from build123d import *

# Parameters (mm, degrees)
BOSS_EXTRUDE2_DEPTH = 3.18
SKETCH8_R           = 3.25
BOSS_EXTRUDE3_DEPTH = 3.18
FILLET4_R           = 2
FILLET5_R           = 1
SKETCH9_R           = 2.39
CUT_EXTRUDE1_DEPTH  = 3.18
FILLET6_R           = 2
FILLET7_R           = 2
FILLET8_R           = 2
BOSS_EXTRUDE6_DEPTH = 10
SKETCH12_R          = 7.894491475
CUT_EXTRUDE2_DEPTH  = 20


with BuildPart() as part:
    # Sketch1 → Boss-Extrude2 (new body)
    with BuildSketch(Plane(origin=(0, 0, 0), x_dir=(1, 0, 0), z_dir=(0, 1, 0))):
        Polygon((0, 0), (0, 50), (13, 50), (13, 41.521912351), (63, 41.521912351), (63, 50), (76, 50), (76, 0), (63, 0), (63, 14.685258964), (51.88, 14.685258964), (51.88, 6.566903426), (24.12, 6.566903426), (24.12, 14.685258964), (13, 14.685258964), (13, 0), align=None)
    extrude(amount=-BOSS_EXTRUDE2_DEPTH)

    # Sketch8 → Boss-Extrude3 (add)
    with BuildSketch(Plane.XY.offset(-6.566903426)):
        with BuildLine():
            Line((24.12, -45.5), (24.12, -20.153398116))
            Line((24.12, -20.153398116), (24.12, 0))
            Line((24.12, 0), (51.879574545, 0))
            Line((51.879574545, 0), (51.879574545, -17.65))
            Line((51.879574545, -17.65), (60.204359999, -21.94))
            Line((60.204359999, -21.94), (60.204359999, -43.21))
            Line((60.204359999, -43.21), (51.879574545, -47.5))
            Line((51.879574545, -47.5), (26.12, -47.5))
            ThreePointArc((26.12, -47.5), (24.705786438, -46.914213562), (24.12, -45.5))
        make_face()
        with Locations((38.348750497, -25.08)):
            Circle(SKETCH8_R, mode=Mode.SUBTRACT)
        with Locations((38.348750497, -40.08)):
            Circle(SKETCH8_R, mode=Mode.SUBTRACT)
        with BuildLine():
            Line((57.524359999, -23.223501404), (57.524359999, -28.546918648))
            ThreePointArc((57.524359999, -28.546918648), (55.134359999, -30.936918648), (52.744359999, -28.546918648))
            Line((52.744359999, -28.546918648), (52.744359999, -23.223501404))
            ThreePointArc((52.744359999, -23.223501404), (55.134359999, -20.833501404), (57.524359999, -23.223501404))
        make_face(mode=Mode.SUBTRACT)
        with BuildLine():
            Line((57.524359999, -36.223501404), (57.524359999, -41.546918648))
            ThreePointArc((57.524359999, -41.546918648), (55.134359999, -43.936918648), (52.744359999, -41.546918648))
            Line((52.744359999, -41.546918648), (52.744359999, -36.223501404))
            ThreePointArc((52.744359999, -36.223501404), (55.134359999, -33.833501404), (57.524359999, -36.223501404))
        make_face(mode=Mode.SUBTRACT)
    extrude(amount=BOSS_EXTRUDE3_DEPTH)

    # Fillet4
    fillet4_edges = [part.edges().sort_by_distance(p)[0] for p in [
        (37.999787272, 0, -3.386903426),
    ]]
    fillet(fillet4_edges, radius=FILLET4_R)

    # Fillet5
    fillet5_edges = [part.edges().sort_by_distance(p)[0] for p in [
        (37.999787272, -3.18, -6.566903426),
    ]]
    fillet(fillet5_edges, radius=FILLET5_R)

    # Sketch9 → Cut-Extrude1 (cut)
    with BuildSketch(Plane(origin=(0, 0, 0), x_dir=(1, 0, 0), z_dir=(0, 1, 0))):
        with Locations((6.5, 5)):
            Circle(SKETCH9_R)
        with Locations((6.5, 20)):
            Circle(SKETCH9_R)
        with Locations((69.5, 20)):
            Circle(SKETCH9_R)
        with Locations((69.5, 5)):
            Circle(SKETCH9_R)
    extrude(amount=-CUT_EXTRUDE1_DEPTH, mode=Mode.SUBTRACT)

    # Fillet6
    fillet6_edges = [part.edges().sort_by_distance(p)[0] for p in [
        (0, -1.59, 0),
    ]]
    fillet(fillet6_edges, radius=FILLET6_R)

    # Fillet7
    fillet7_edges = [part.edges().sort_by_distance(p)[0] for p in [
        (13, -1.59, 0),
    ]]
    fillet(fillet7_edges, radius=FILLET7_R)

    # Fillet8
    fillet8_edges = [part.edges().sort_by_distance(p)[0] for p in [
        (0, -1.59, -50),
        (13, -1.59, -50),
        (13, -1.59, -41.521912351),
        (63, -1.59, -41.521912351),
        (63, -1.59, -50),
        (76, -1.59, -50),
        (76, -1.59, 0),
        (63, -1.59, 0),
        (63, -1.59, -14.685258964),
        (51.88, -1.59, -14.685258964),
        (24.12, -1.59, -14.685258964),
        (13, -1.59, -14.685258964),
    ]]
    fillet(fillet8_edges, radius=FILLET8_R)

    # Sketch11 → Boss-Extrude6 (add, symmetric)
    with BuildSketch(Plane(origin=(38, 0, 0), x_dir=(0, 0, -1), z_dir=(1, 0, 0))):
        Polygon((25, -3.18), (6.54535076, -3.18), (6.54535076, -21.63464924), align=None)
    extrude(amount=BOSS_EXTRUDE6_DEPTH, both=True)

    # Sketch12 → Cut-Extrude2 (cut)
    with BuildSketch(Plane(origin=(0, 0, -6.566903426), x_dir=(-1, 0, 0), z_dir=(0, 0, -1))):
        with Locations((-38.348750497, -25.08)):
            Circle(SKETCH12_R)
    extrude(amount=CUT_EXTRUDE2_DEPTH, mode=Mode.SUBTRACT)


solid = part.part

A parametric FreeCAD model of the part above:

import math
import FreeCAD as App
import Part
import Sketcher


def edges_at(feature, points):
    """Names of the edges that pass closest to the given points."""
    edges = feature.Shape.Edges
    near = lambda p: min(range(len(edges)), key=lambda i: edges[i].distToShape(Part.Vertex(*p))[0])
    return sorted({f"Edge{near(p) + 1}" for p in points})

doc = App.newDocument("Part")
body = doc.addObject("PartDesign::Body", "Body")

# Sketch on XZ plane
sketch1 = body.newObject("Sketcher::SketchObject", "Sketch")
sketch1.AttachmentSupport = (doc.getObject("XZ_Plane"), [""])
sketch1.MapMode = "FlatFace"
sketch1.addGeometry([
    Part.LineSegment(App.Vector(0, -50, 0), App.Vector(0, 0, 0)),  # 0
    Part.LineSegment(App.Vector(0, 0, 0), App.Vector(13, 0, 0)),  # 1
    Part.LineSegment(App.Vector(13, 0, 0), App.Vector(13, -15, 0)),  # 2
    Part.LineSegment(App.Vector(13, -15, 0), App.Vector(24, -15, 0)),  # 3
    Part.LineSegment(App.Vector(24, -15, 0), App.Vector(24, -7, 0)),  # 4
    Part.LineSegment(App.Vector(24, -7, 0), App.Vector(52, -7, 0)),  # 5
    Part.LineSegment(App.Vector(52, -7, 0), App.Vector(52, -15, 0)),  # 6
    Part.LineSegment(App.Vector(52, -15, 0), App.Vector(63, -15, 0)),  # 7
    Part.LineSegment(App.Vector(63, -15, 0), App.Vector(63, 0, 0)),  # 8
    Part.LineSegment(App.Vector(63, 0, 0), App.Vector(76, 0, 0)),  # 9
    Part.LineSegment(App.Vector(76, 0, 0), App.Vector(76, -50, 0)),  # 10
    Part.LineSegment(App.Vector(76, -50, 0), App.Vector(63, -50, 0)),  # 11
    Part.LineSegment(App.Vector(63, -50, 0), App.Vector(63, -42, 0)),  # 12
    Part.LineSegment(App.Vector(63, -42, 0), App.Vector(13, -42, 0)),  # 13
    Part.LineSegment(App.Vector(13, -42, 0), App.Vector(13, -50, 0)),  # 14
    Part.LineSegment(App.Vector(13, -50, 0), App.Vector(0, -50, 0)),  # 15
], False)
sketch1.addConstraint([
    Sketcher.Constraint("Coincident", 0, 2, 1, 1),
    Sketcher.Constraint("Coincident", 1, 2, 2, 1),
    Sketcher.Constraint("Coincident", 2, 2, 3, 1),
    Sketcher.Constraint("Coincident", 3, 2, 4, 1),
    Sketcher.Constraint("Coincident", 4, 2, 5, 1),
    Sketcher.Constraint("Coincident", 5, 2, 6, 1),
    Sketcher.Constraint("Coincident", 6, 2, 7, 1),
    Sketcher.Constraint("Coincident", 7, 2, 8, 1),
    Sketcher.Constraint("Coincident", 8, 2, 9, 1),
    Sketcher.Constraint("Coincident", 9, 2, 10, 1),
    Sketcher.Constraint("Coincident", 10, 2, 11, 1),
    Sketcher.Constraint("Coincident", 11, 2, 12, 1),
    Sketcher.Constraint("Coincident", 12, 2, 13, 1),
    Sketcher.Constraint("Coincident", 13, 2, 14, 1),
    Sketcher.Constraint("Coincident", 14, 2, 15, 1),
    Sketcher.Constraint("Coincident", 15, 2, 0, 1),
    Sketcher.Constraint("Vertical", 0),
    Sketcher.Constraint("Horizontal", 1),
    Sketcher.Constraint("Vertical", 2),
    Sketcher.Constraint("Horizontal", 3),
    Sketcher.Constraint("Vertical", 4),
    Sketcher.Constraint("Horizontal", 5),
    Sketcher.Constraint("Vertical", 6),
    Sketcher.Constraint("Horizontal", 7),
    Sketcher.Constraint("Vertical", 8),
    Sketcher.Constraint("Horizontal", 9),
    Sketcher.Constraint("Vertical", 10),
    Sketcher.Constraint("Horizontal", 11),
    Sketcher.Constraint("Vertical", 12),
    Sketcher.Constraint("Horizontal", 13),
    Sketcher.Constraint("Vertical", 14),
    Sketcher.Constraint("Horizontal", 15),
    Sketcher.Constraint("Coincident", 0, 2, -1, 1),
    Sketcher.Constraint("PointOnObject", 8, 2, -1),
    Sketcher.Constraint("Horizontal", 3, 2, 6, 2),
    Sketcher.Constraint("Horizontal", 11, 2, 14, 2),
    Sketcher.Constraint("Vertical", 8, 2, 11, 2),
    Sketcher.Constraint("Vertical", 2, 2, 13, 2),
    Sketcher.Constraint("Equal", 3, 7),
    Sketcher.Constraint("Equal", 1, 9),
    Sketcher.Constraint("Equal", 13, 0),
    Sketcher.Constraint("DistanceX", 1, 1, 1, 2, 13.0),
    Sketcher.Constraint("DistanceX", 13, 2, 13, 1, 50.0),
    Sketcher.Constraint("DistanceX", 3, 1, 3, 2, 11.12),
    Sketcher.Constraint("DistanceY", 2, 2, 2, 1, 14.685259),
    Sketcher.Constraint("DistanceY", 4, 1, 4, 2, 8.118356),
    Sketcher.Constraint("DistanceY", 12, 1, 12, 2, 8.478088),
])
pad1 = body.newObject("PartDesign::Pad", "Pad")
pad1.Profile = sketch1
pad1.Length = 3.18

# Sketch on XY plane
sketch2 = body.newObject("Sketcher::SketchObject", "Sketch001")
sketch2.AttachmentSupport = (doc.getObject("XY_Plane"), [""])
sketch2.MapMode = "FlatFace"
sketch2.AttachmentOffset = App.Placement(App.Vector(0, 0, -6.566903), App.Rotation())
sketch2.addGeometry([
    Part.LineSegment(App.Vector(24.1, 0, 0), App.Vector(24.1, -45.5, 0)),  # 0
    Part.ArcOfCircle(Part.Circle(App.Vector(26.1, -45.5, 0), App.Vector(0, 0, 1), 2), math.radians(-180), math.radians(-90)),  # 1
    Part.LineSegment(App.Vector(26.1, -47.5, 0), App.Vector(51.9, -47.5, 0)),  # 2
    Part.LineSegment(App.Vector(51.9, -47.5, 0), App.Vector(60.2, -43.2, 0)),  # 3
    Part.LineSegment(App.Vector(60.2, -43.2, 0), App.Vector(60.2, -21.9, 0)),  # 4
    Part.LineSegment(App.Vector(60.2, -21.9, 0), App.Vector(51.9, -17.6, 0)),  # 5
    Part.LineSegment(App.Vector(51.9, -17.6, 0), App.Vector(51.9, 0, 0)),  # 6
    Part.LineSegment(App.Vector(51.9, 0, 0), App.Vector(24.1, 0, 0)),  # 7
    Part.LineSegment(App.Vector(57.5, -36.2, 0), App.Vector(57.5, -41.5, 0)),  # 8
    Part.ArcOfCircle(Part.Circle(App.Vector(55.1, -41.5, 0), App.Vector(0, 0, 1), 2.4), math.radians(180), math.radians(360)),  # 9
    Part.LineSegment(App.Vector(52.7, -41.5, 0), App.Vector(52.7, -36.2, 0)),  # 10
    Part.ArcOfCircle(Part.Circle(App.Vector(55.1, -36.2, 0), App.Vector(0, 0, 1), 2.4), math.radians(0), math.radians(180)),  # 11
    Part.Circle(App.Vector(38.3, -40.1, 0), App.Vector(0, 0, 1), 3.2),  # 12
    Part.LineSegment(App.Vector(57.5, -23.2, 0), App.Vector(57.5, -28.5, 0)),  # 13
    Part.ArcOfCircle(Part.Circle(App.Vector(55.1, -28.5, 0), App.Vector(0, 0, 1), 2.4), math.radians(180), math.radians(360)),  # 14
    Part.LineSegment(App.Vector(52.7, -28.5, 0), App.Vector(52.7, -23.2, 0)),  # 15
    Part.ArcOfCircle(Part.Circle(App.Vector(55.1, -23.2, 0), App.Vector(0, 0, 1), 2.4), math.radians(0), math.radians(180)),  # 16
    Part.Circle(App.Vector(38.3, -25.1, 0), App.Vector(0, 0, 1), 3.2),  # 17
], False)
sketch2.addConstraint([
    Sketcher.Constraint("Tangent", 0, 2, 1, 1),
    Sketcher.Constraint("Tangent", 1, 2, 2, 1),
    Sketcher.Constraint("Coincident", 2, 2, 3, 1),
    Sketcher.Constraint("Coincident", 3, 2, 4, 1),
    Sketcher.Constraint("Coincident", 4, 2, 5, 1),
    Sketcher.Constraint("Coincident", 5, 2, 6, 1),
    Sketcher.Constraint("Coincident", 6, 2, 7, 1),
    Sketcher.Constraint("Coincident", 7, 2, 0, 1),
    Sketcher.Constraint("Tangent", 8, 2, 9, 2),
    Sketcher.Constraint("Tangent", 9, 1, 10, 1),
    Sketcher.Constraint("Tangent", 10, 2, 11, 2),
    Sketcher.Constraint("Tangent", 11, 1, 8, 1),
    Sketcher.Constraint("Tangent", 13, 2, 14, 2),
    Sketcher.Constraint("Tangent", 14, 1, 15, 1),
    Sketcher.Constraint("Tangent", 15, 2, 16, 2),
    Sketcher.Constraint("Tangent", 16, 1, 13, 1),
    Sketcher.Constraint("Vertical", 0),
    Sketcher.Constraint("Horizontal", 2),
    Sketcher.Constraint("Vertical", 4),
    Sketcher.Constraint("Vertical", 6),
    Sketcher.Constraint("Horizontal", 7),
    Sketcher.Constraint("Vertical", 8),
    Sketcher.Constraint("Vertical", 10),
    Sketcher.Constraint("Vertical", 13),
    Sketcher.Constraint("Vertical", 15),
    Sketcher.Constraint("Equal", 11, 14),
    Sketcher.Constraint("Equal", 12, 17),
    Sketcher.Constraint("PointOnObject", 6, 2, -1),
    Sketcher.Constraint("Vertical", 11, 3, 14, 3),
    Sketcher.Constraint("Vertical", 12, 3, 17, 3),
    Sketcher.Constraint("Vertical", 2, 2, 5, 2),
    Sketcher.Constraint("Equal", 10, 13),
    Sketcher.Constraint("Equal", 3, 5),
    Sketcher.Constraint("Radius", 1, 2.0),
    Sketcher.Constraint("Diameter", 12, 6.5),
    Sketcher.Constraint("Radius", 9, 2.39),
    Sketcher.Constraint("DistanceY", 0, 2, 0, 1, 45.5),
    Sketcher.Constraint("DistanceY", 9, 3, 14, 3, 13.0),
    Sketcher.Constraint("DistanceY", 12, 3, 17, 3, 15.0),
    Sketcher.Constraint("DistanceY", 4, 1, 4, 2, 21.27),
    Sketcher.Constraint("DistanceY", 6, 1, 6, 2, 17.65),
    Sketcher.Constraint("DistanceX", -1, 1, 1, 3, 26.12),
    Sketcher.Constraint("DistanceY", 12, 3, -1, 1, 40.08),
    Sketcher.Constraint("DistanceX", 9, 3, 3, 2, 5.07),
    Sketcher.Constraint("DistanceY", 11, 3, -1, 1, 36.223501),
    Sketcher.Constraint("DistanceX", 2, 1, 2, 2, 25.759575),
    Sketcher.Constraint("DistanceY", 8, 2, 8, 1, 5.323417),
    Sketcher.Constraint("DistanceX", -1, 1, 9, 3, 55.13436),
    Sketcher.Constraint("DistanceX", -1, 1, 12, 3, 38.34875),
])
pad2 = body.newObject("PartDesign::Pad", "Pad001")
pad2.Profile = sketch2
pad2.Length = 3.18
doc.recompute()

fillet = body.newObject("PartDesign::Fillet", "Fillet")
fillet.Base = (pad2, edges_at(pad2, [(38, 0, -3.387)]))
fillet.Radius = 2
doc.recompute()

fillet2 = body.newObject("PartDesign::Fillet", "Fillet001")
fillet2.Base = (fillet, edges_at(fillet, [(38, -3.18, -6.567)]))
fillet2.Radius = 1

# Sketch on XZ plane
sketch3 = body.newObject("Sketcher::SketchObject", "Sketch002")
sketch3.AttachmentSupport = (doc.getObject("XZ_Plane"), [""])
sketch3.MapMode = "FlatFace"
sketch3.addGeometry([
    Part.Circle(App.Vector(6.5, -5, 0), App.Vector(0, 0, 1), 2.4),
    Part.Circle(App.Vector(6.5, -20, 0), App.Vector(0, 0, 1), 2.4),
    Part.Circle(App.Vector(69.5, -20, 0), App.Vector(0, 0, 1), 2.4),
    Part.Circle(App.Vector(69.5, -5, 0), App.Vector(0, 0, 1), 2.4),
], False)
sketch3.addConstraint([
    Sketcher.Constraint("Equal", 0, 1),
    Sketcher.Constraint("Equal", 1, 2),
    Sketcher.Constraint("Equal", 2, 3),
    Sketcher.Constraint("Horizontal", 1, 3, 2, 3),
    Sketcher.Constraint("Horizontal", 0, 3, 3, 3),
    Sketcher.Constraint("Vertical", 0, 3, 1, 3),
    Sketcher.Constraint("Vertical", 2, 3, 3, 3),
    Sketcher.Constraint("Diameter", 0, 4.78),
    Sketcher.Constraint("DistanceY", 0, 3, -1, 1, 5.0),
    Sketcher.Constraint("DistanceY", 1, 3, -1, 1, 20.0),
    Sketcher.Constraint("DistanceX", 1, 3, 2, 3, 63.0),
    Sketcher.Constraint("DistanceX", -1, 1, 0, 3, 6.5),
])
pocket1 = body.newObject("PartDesign::Pocket", "Pocket")
pocket1.Profile = sketch3
pocket1.Length = 3.18
pocket1.Reversed = True
doc.recompute()

fillet3 = body.newObject("PartDesign::Fillet", "Fillet002")
fillet3.Base = (pocket1, edges_at(pocket1, [(0, -1.59, 0)]))
fillet3.Radius = 2
doc.recompute()

fillet4 = body.newObject("PartDesign::Fillet", "Fillet003")
fillet4.Base = (fillet3, edges_at(fillet3, [(13, -1.59, 0)]))
fillet4.Radius = 2
doc.recompute()

fillet5 = body.newObject("PartDesign::Fillet", "Fillet004")
fillet5.Base = (fillet4, edges_at(fillet4, [
    (0, -1.59, -50),
    (13, -1.59, -50),
    (13, -1.59, -41.522),
    (63, -1.59, -41.522),
    (63, -1.59, -50),
    (76, -1.59, -50),
    (76, -1.59, 0),
    (63, -1.59, 0),
    (63, -1.59, -14.685),
    (51.88, -1.59, -14.685),
    (24.12, -1.59, -14.685),
    (13, -1.59, -14.685),
]))
fillet5.Radius = 2

# Sketch on YZ plane
sketch4 = body.newObject("Sketcher::SketchObject", "Sketch003")
sketch4.AttachmentSupport = (doc.getObject("YZ_Plane"), [""])
sketch4.MapMode = "FlatFace"
sketch4.AttachmentOffset = App.Placement(App.Vector(0, 0, 38), App.Rotation())
sketch4.addGeometry([
    Part.LineSegment(App.Vector(-3, -25, 0), App.Vector(-3, -7, 0)),
    Part.LineSegment(App.Vector(-3, -7, 0), App.Vector(-22, -7, 0)),
    Part.LineSegment(App.Vector(-22, -7, 0), App.Vector(-3, -25, 0)),
], False)
sketch4.addConstraint([
    Sketcher.Constraint("Coincident", 0, 2, 1, 1),
    Sketcher.Constraint("Coincident", 1, 2, 2, 1),
    Sketcher.Constraint("Coincident", 2, 2, 0, 1),
    Sketcher.Constraint("Vertical", 0),
    Sketcher.Constraint("Horizontal", 1),
    Sketcher.Constraint("Equal", 1, 0),
    Sketcher.Constraint("DistanceY", 2, 2, -1, 1, 25.0),
    Sketcher.Constraint("DistanceX", 0, 2, -1, 1, 3.18),
    Sketcher.Constraint("DistanceX", 1, 2, 1, 1, 18.454649),
])
pad3 = body.newObject("PartDesign::Pad", "Pad002")
pad3.Profile = sketch4
pad3.Length = 20
pad3.Midplane = True

# Sketch on XY plane
sketch5 = body.newObject("Sketcher::SketchObject", "Sketch004")
sketch5.AttachmentSupport = (doc.getObject("XY_Plane"), [""])
sketch5.MapMode = "FlatFace"
sketch5.AttachmentOffset = App.Placement(App.Vector(0, 0, -6.566903), App.Rotation())
sketch5.addGeometry(Part.Circle(App.Vector(38, -25, 0), App.Vector(0, 0, 1), 8), False)
sketch5.addConstraint([
    Sketcher.Constraint("DistanceY", 0, 3, -1, 1, 25.08),
    Sketcher.Constraint("Diameter", 0, 15.788983),
    Sketcher.Constraint("DistanceX", -1, 1, 0, 3, 38.34875),
])
pocket2 = body.newObject("PartDesign::Pocket", "Pocket001")
pocket2.Profile = sketch5
pocket2.Length = 20

doc.recompute()
